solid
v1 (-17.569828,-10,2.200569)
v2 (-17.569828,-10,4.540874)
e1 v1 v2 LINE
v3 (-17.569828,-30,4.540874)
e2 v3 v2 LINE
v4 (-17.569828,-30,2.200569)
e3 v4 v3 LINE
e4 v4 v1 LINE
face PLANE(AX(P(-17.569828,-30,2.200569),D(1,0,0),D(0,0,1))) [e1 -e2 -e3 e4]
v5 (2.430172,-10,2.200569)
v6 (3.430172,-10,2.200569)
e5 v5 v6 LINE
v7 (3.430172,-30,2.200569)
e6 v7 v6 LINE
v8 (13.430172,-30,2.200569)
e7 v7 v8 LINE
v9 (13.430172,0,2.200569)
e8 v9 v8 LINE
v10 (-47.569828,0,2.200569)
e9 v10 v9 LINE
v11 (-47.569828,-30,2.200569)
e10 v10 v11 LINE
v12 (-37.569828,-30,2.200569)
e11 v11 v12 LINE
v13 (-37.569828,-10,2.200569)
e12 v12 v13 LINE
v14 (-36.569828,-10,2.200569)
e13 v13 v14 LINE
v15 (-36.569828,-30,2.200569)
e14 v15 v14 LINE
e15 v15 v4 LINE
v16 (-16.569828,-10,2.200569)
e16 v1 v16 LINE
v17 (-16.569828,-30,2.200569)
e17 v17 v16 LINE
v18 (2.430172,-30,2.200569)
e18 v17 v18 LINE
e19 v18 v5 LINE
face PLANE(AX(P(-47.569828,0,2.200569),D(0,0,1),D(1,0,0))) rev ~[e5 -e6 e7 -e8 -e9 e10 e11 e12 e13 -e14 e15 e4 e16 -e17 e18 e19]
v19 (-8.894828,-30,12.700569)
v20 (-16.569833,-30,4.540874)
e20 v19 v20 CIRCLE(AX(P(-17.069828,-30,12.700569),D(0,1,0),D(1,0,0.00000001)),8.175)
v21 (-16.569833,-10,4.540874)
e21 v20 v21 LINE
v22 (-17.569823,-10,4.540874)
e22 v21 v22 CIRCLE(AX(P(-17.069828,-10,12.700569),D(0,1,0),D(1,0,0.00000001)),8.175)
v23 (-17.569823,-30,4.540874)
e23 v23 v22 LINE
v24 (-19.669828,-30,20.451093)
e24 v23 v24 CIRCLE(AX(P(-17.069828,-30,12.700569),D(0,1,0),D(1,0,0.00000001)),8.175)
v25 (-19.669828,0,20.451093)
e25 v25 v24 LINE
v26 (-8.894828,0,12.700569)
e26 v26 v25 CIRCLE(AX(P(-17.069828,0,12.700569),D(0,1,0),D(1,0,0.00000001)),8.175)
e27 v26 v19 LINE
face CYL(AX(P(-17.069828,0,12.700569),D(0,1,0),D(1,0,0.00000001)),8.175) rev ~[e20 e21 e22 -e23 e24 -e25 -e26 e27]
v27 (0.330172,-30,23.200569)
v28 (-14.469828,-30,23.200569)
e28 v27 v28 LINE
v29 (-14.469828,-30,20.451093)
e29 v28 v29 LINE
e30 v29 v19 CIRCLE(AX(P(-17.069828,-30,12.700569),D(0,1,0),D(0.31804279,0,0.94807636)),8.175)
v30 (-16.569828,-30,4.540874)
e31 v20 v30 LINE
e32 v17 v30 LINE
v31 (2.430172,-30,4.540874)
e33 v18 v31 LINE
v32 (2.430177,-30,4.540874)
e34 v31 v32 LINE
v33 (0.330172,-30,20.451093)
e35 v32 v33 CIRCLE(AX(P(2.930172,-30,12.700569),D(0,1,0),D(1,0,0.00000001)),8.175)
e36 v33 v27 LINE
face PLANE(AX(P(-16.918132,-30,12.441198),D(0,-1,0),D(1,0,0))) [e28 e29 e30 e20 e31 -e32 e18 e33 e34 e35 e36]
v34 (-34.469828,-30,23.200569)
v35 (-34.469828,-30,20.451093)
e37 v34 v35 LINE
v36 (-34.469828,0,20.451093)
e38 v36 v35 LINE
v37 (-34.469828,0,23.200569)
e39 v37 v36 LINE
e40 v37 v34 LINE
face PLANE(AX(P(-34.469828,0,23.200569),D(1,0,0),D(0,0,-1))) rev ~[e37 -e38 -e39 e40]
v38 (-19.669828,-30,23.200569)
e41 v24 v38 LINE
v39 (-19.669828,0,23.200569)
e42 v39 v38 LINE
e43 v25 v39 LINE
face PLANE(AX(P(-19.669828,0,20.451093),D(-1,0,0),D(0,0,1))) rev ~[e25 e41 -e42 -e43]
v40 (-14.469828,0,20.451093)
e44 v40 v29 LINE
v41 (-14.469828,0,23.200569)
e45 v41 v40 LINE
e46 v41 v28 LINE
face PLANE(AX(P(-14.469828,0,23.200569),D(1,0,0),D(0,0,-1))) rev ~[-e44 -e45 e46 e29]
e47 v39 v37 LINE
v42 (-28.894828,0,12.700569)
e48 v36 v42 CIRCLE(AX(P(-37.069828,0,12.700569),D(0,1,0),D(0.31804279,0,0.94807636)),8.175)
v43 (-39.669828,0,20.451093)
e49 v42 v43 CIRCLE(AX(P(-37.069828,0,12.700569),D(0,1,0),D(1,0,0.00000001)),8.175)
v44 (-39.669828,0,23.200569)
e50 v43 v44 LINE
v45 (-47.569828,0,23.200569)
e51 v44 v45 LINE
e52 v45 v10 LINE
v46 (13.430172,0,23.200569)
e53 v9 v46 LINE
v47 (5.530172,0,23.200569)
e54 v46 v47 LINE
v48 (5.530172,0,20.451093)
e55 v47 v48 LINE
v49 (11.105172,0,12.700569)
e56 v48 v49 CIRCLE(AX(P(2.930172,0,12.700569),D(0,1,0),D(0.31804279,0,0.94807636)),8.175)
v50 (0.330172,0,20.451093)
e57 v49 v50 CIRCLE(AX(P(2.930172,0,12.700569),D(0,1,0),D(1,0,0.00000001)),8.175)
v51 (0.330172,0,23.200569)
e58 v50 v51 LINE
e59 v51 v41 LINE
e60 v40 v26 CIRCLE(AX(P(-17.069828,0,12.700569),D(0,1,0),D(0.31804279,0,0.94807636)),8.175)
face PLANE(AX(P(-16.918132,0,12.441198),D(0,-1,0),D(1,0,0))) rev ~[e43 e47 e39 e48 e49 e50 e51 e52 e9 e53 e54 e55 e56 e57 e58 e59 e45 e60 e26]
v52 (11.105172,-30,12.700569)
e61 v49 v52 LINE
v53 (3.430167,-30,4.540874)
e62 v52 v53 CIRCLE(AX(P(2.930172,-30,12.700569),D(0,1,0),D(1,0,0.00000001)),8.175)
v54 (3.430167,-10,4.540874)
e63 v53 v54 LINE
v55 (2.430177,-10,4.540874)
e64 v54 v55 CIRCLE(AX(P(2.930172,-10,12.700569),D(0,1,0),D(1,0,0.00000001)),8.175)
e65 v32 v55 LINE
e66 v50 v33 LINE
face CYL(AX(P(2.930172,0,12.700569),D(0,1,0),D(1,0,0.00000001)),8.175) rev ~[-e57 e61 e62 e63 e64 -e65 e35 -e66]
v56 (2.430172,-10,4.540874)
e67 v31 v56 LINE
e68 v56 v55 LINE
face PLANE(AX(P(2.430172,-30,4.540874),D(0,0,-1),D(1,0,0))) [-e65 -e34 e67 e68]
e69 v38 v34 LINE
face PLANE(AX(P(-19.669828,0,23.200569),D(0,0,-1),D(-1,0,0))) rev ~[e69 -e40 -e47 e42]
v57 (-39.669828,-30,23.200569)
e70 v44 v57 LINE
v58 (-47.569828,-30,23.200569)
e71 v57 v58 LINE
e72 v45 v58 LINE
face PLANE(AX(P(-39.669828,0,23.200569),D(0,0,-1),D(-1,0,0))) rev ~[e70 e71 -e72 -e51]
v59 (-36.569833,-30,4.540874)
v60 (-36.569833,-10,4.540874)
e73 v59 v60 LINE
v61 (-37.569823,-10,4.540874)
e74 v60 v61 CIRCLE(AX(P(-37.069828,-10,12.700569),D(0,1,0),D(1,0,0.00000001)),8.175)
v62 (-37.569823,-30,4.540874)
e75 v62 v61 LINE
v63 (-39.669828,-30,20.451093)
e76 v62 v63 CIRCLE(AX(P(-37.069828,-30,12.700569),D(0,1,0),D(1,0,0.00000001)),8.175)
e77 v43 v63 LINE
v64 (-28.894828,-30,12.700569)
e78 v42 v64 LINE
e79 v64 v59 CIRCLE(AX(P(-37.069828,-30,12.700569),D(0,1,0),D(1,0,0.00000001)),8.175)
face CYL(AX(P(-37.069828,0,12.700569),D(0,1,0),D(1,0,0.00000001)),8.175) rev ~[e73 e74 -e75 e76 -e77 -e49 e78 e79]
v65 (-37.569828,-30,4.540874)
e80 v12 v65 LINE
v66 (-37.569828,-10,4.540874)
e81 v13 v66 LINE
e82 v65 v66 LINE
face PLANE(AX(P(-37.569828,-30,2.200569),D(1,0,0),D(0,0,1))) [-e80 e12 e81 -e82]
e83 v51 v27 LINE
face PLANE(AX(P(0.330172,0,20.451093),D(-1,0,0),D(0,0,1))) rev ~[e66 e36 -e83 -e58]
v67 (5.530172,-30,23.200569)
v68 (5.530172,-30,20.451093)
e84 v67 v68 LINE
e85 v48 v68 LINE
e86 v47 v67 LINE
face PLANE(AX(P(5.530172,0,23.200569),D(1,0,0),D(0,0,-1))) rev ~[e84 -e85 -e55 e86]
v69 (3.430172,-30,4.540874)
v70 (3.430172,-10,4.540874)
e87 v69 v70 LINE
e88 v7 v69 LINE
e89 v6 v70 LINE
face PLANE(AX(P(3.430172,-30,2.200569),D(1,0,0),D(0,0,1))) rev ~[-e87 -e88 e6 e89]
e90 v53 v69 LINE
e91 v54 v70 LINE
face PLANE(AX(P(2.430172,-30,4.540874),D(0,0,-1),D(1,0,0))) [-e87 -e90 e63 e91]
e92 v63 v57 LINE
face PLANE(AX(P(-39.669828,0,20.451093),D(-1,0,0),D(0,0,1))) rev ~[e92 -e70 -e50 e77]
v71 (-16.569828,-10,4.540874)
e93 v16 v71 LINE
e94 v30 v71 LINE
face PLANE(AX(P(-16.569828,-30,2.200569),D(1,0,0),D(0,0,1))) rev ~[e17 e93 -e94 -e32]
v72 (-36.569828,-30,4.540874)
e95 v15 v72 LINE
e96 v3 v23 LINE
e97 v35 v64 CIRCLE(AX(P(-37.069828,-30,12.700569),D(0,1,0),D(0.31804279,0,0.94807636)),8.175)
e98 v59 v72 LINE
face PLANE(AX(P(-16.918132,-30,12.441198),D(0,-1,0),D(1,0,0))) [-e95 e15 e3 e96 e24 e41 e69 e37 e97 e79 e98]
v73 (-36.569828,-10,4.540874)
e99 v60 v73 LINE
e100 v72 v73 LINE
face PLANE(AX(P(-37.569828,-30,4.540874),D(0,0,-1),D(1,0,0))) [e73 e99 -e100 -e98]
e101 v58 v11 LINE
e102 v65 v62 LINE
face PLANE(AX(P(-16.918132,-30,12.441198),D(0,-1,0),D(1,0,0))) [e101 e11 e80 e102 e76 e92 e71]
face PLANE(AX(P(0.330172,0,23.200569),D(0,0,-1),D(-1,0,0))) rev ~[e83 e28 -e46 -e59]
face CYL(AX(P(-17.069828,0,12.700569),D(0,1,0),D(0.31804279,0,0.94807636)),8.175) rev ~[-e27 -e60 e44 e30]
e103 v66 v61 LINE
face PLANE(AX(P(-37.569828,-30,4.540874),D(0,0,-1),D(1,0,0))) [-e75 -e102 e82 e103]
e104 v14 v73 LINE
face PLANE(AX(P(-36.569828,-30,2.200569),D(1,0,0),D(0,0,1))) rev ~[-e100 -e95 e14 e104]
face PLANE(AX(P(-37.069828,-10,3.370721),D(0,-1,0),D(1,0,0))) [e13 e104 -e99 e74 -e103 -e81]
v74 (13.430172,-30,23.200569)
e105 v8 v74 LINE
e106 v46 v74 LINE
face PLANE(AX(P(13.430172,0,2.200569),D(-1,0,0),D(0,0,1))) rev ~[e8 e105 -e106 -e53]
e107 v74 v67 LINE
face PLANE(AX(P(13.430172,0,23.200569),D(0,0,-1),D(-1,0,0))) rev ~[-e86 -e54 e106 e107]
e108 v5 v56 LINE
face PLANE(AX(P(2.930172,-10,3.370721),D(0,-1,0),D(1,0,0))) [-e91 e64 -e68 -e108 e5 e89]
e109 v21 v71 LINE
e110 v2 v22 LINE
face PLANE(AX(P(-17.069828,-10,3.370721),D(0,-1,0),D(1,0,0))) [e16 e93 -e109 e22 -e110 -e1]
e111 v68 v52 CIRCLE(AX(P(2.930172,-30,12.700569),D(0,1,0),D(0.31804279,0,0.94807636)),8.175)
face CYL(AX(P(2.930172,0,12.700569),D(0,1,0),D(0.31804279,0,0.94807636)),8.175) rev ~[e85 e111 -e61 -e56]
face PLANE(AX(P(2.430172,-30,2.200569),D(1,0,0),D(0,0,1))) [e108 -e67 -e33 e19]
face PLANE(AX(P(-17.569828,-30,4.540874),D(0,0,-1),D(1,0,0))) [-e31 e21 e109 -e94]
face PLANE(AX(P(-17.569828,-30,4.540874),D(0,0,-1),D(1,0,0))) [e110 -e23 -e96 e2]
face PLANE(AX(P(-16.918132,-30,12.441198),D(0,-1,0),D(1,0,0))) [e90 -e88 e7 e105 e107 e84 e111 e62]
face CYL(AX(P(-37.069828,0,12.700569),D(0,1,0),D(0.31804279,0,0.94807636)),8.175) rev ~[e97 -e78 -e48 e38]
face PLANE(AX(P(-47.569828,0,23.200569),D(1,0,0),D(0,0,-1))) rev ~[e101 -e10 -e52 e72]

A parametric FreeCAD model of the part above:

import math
import FreeCAD as App
import Part
import Sketcher

V = App.Vector
Q = App.Units.Quantity


def add_polygon(sketch, points):
    """Adds a closed chain of lines whose ends are joined by coincident constraints."""
    first, n = sketch.GeometryCount, len(points)
    for a, b in zip(points, points[1:] + points[:1]):
        sketch.addGeometry(Part.LineSegment(App.Vector(*a, 0), App.Vector(*b, 0)), False)
    for i in range(n):
        sketch.addConstraint(Sketcher.Constraint("Coincident", first + i, 2, first + (i + 1) % n, 1))

doc = App.newDocument("Part")
body = doc.addObject("PartDesign::Body", "Body")

sketch1 = body.newObject("Sketcher::SketchObject", "Sketch")
sketch1.AttachmentSupport = (doc.getObject("XZ_Plane"), [""])
sketch1.MapMode = "FlatFace"
sketch1.addGeometry(Part.LineSegment(V(-39.7, 23.2, 0), V(-47.6, 23.2, 0)), False)
sketch1.addGeometry(Part.LineSegment(V(-47.6, 23.2, 0), V(-47.6, 2.2, 0)), False)
sketch1.addGeometry(Part.LineSegment(V(-47.6, 2.2, 0), V(13.4, 2.2, 0)), False)
sketch1.addGeometry(Part.LineSegment(V(13.4, 2.2, 0), V(13.4, 23.2, 0)), False)
sketch1.addGeometry(Part.LineSegment(V(13.4, 23.2, 0), V(5.5, 23.2, 0)), False)
sketch1.addGeometry(Part.LineSegment(V(5.5, 23.2, 0), V(5.5, 20.5, 0)), False)
sketch1.addGeometry(Part.ArcOfCircle(Part.Circle(V(2.9, 12.7, 0), V(0, 0, 1), 8.2), math.radians(0), math.radians(71)), False)
sketch1.addGeometry(Part.ArcOfCircle(Part.Circle(V(2.9, 12.7, 0), V(0, 0, 1), 8.2), math.radians(109), math.radians(360)), False)
sketch1.addGeometry(Part.LineSegment(V(0.3, 20.5, 0), V(0.3, 23.2, 0)), False)
sketch1.addGeometry(Part.LineSegment(V(0.3, 23.2, 0), V(-14.5, 23.2, 0)), False)
sketch1.addGeometry(Part.LineSegment(V(-14.5, 23.2, 0), V(-14.5, 20.5, 0)), False)
sketch1.addGeometry(Part.ArcOfCircle(Part.Circle(V(-17.1, 12.7, 0), V(0, 0, 1), 8.2), math.radians(0), math.radians(71)), False)
sketch1.addGeometry(Part.ArcOfCircle(Part.Circle(V(-17.1, 12.7, 0), V(0, 0, 1), 8.2), math.radians(109), math.radians(360)), False)
sketch1.addGeometry(Part.LineSegment(V(-19.7, 20.5, 0), V(-19.7, 23.2, 0)), False)
sketch1.addGeometry(Part.LineSegment(V(-19.7, 23.2, 0), V(-34.5, 23.2, 0)), False)
sketch1.addGeometry(Part.LineSegment(V(-34.5, 23.2, 0), V(-34.5, 20.5, 0)), False)
sketch1.addGeometry(Part.ArcOfCircle(Part.Circle(V(-37.1, 12.7, 0), V(0, 0, 1), 8.2), math.radians(0), math.radians(71)), False)
sketch1.addGeometry(Part.ArcOfCircle(Part.Circle(V(-37.1, 12.7, 0), V(0, 0, 1), 8.2), math.radians(109), math.radians(360)), False)
sketch1.addGeometry(Part.LineSegment(V(-39.7, 20.5, 0), V(-39.7, 23.2, 0)), False)
sketch1.addConstraint(Sketcher.Constraint("Coincident", 0, 2, 1, 1))
sketch1.addConstraint(Sketcher.Constraint("Coincident", 1, 2, 2, 1))
sketch1.addConstraint(Sketcher.Constraint("Coincident", 2, 2, 3, 1))
sketch1.addConstraint(Sketcher.Constraint("Coincident", 3, 2, 4, 1))
sketch1.addConstraint(Sketcher.Constraint("Coincident", 4, 2, 5, 1))
sketch1.addConstraint(Sketcher.Constraint("Coincident", 5, 2, 6, 2))
sketch1.addConstraint(Sketcher.Constraint("Tangent", 6, 1, 7, 2))
sketch1.addConstraint(Sketcher.Constraint("Coincident", 7, 1, 8, 1))
sketch1.addConstraint(Sketcher.Constraint("Coincident", 8, 2, 9, 1))
sketch1.addConstraint(Sketcher.Constraint("Coincident", 9, 2, 10, 1))
sketch1.addConstraint(Sketcher.Constraint("Coincident", 10, 2, 11, 2))
sketch1.addConstraint(Sketcher.Constraint("Tangent", 11, 1, 12, 2))
sketch1.addConstraint(Sketcher.Constraint("Coincident", 12, 1, 13, 1))
sketch1.addConstraint(Sketcher.Constraint("Coincident", 13, 2, 14, 1))
sketch1.addConstraint(Sketcher.Constraint("Coincident", 14, 2, 15, 1))
sketch1.addConstraint(Sketcher.Constraint("Coincident", 15, 2, 16, 2))
sketch1.addConstraint(Sketcher.Constraint("Tangent", 16, 1, 17, 2))
sketch1.addConstraint(Sketcher.Constraint("Coincident", 17, 1, 18, 1))
sketch1.addConstraint(Sketcher.Constraint("Coincident", 18, 2, 0, 1))
sketch1.addConstraint(Sketcher.Constraint("Horizontal", 0))
sketch1.addConstraint(Sketcher.Constraint("Vertical", 1))
sketch1.addConstraint(Sketcher.Constraint("Horizontal", 2))
sketch1.addConstraint(Sketcher.Constraint("Vertical", 3))
sketch1.addConstraint(Sketcher.Constraint("Horizontal", 4))
sketch1.addConstraint(Sketcher.Constraint("Vertical", 5))
sketch1.addConstraint(Sketcher.Constraint("Vertical", 8))
sketch1.addConstraint(Sketcher.Constraint("Horizontal", 9))
sketch1.addConstraint(Sketcher.Constraint("Vertical", 10))
sketch1.addConstraint(Sketcher.Constraint("Vertical", 13))
sketch1.addConstraint(Sketcher.Constraint("Horizontal", 14))
sketch1.addConstraint(Sketcher.Constraint("Vertical", 15))
sketch1.addConstraint(Sketcher.Constraint("Vertical", 18))
sketch1.addConstraint(Sketcher.Constraint("Equal", 6, 7))
sketch1.addConstraint(Sketcher.Constraint("Equal", 7, 11))
sketch1.addConstraint(Sketcher.Constraint("Equal", 11, 12))
sketch1.addConstraint(Sketcher.Constraint("Equal", 12, 16))
sketch1.addConstraint(Sketcher.Constraint("Equal", 16, 17))
sketch1.addConstraint(Sketcher.Constraint("Horizontal", 7, 3, 11, 3))
sketch1.addConstraint(Sketcher.Constraint("Horizontal", 12, 3, 16, 3))
sketch1.addConstraint(Sketcher.Constraint("Horizontal", 0, 2, 3, 2))
sketch1.addConstraint(Sketcher.Constraint("Horizontal", 17, 3, 6, 1))
sketch1.addConstraint(Sketcher.Constraint("Horizontal", 5, 2, 7, 1))
sketch1.addConstraint(Sketcher.Constraint("Horizontal", 4, 2, 8, 2))
sketch1.addConstraint(Sketcher.Constraint("Horizontal", 7, 1, 10, 2))
sketch1.addConstraint(Sketcher.Constraint("Horizontal", 6, 1, 11, 1))
sketch1.addConstraint(Sketcher.Constraint("Horizontal", 10, 2, 12, 1))
sketch1.addConstraint(Sketcher.Constraint("Horizontal", 9, 2, 13, 2))
sketch1.addConstraint(Sketcher.Constraint("Horizontal", 12, 1, 15, 2))
sketch1.addConstraint(Sketcher.Constraint("Horizontal", 11, 1, 16, 1))
sketch1.addConstraint(Sketcher.Constraint("Horizontal", 15, 2, 17, 1))
sketch1.addConstraint(Sketcher.Constraint("Equal", 0, 4))
sketch1.addConstraint(Sketcher.Constraint("Equal", 9, 14))
sketch1.addConstraint(Sketcher.Constraint("DistanceX", 2, 1, 2, 2, Q("61 mm")))
sketch1.addConstraint(Sketcher.Constraint("DistanceY", 1, 2, 1, 1, Q("21 mm")))
sketch1.addConstraint(Sketcher.Constraint("DistanceX", 0, 2, 0, 1, Q("7.9 mm")))
sketch1.addConstraint(Sketcher.Constraint("DistanceX", 9, 2, 9, 1, Q("14.8 mm")))
sketch1.addConstraint(Sketcher.Constraint("Radius", 6, Q("8.175 mm")))
sketch1.addConstraint(Sketcher.Constraint("DistanceY", 17, 3, 0, 2, Q("10.5 mm")))
sketch1.addConstraint(Sketcher.Constraint("DistanceY", -1, 1, 6, 3, Q("12.700569 mm")))
sketch1.addConstraint(Sketcher.Constraint("DistanceX", -1, 1, 7, 1, Q("0.330172 mm")))
pad1 = body.newObject("PartDesign::Pad", "Pad")
pad1.Profile = sketch1
pad1.Length = 30

sketch2 = body.newObject("Sketcher::SketchObject", "Sketch001")
sketch2.AttachmentSupport = (doc.getObject("XZ_Plane"), [""])
sketch2.MapMode = "FlatFace"
sketch2.AttachmentOffset = App.Placement(V(0, 0, 30), App.Rotation())
add_polygon(sketch2, [(-37.6, 4.5), (-37.6, 2.2), (-36.6, 2.2), (-36.6, 4.5)])
add_polygon(sketch2, [(-17.6, 4.5), (-17.6, 2.2), (-16.6, 2.2), (-16.6, 4.5)])
add_polygon(sketch2, [(2.4, 4.5), (2.4, 2.2), (3.4, 2.2), (3.4, 4.5)])
sketch2.addConstraint(Sketcher.Constraint("Vertical", 0))
sketch2.addConstraint(Sketcher.Constraint("Horizontal", 1))
sketch2.addConstraint(Sketcher.Constraint("Vertical", 2))
sketch2.addConstraint(Sketcher.Constraint("Horizontal", 3))
sketch2.addConstraint(Sketcher.Constraint("Vertical", 4))
sketch2.addConstraint(Sketcher.Constraint("Horizontal", 5))
sketch2.addConstraint(Sketcher.Constraint("Vertical", 6))
sketch2.addConstraint(Sketcher.Constraint("Horizontal", 7))
sketch2.addConstraint(Sketcher.Constraint("Vertical", 8))
sketch2.addConstraint(Sketcher.Constraint("Horizontal", 9))
sketch2.addConstraint(Sketcher.Constraint("Vertical", 10))
sketch2.addConstraint(Sketcher.Constraint("Horizontal", 11))
sketch2.addConstraint(Sketcher.Constraint("Horizontal", 1, 2, 4, 2))
sketch2.addConstraint(Sketcher.Constraint("Horizontal", 3, 2, 6, 2))
sketch2.addConstraint(Sketcher.Constraint("Horizontal", 5, 2, 8, 2))
sketch2.addConstraint(Sketcher.Constraint("Horizontal", 7, 2, 10, 2))
sketch2.addConstraint(Sketcher.Constraint("Equal", 3, 5))
sketch2.addConstraint(Sketcher.Constraint("Equal", 7, 9))
sketch2.addConstraint(Sketcher.Constraint("DistanceX", 1, 1, 1, 2, Q("1 mm")))
sketch2.addConstraint(Sketcher.Constraint("DistanceX", 1, 2, 4, 2, Q("19 mm")))
sketch2.addConstraint(Sketcher.Constraint("DistanceX", 5, 2, 8, 2, Q("19 mm")))
sketch2.addConstraint(Sketcher.Constraint("DistanceY", 0, 2, 0, 1, Q("2.340305 mm")))
sketch2.addConstraint(Sketcher.Constraint("DistanceY", -1, 1, 0, 2, Q("2.200569 mm")))
sketch2.addConstraint(Sketcher.Constraint("DistanceX", 4, 2, -1, 1, Q("17.569828 mm")))
pocket1 = body.newObject("PartDesign::Pocket", "Pocket")
pocket1.Profile = sketch2
pocket1.Length = 20

doc.recompute()
